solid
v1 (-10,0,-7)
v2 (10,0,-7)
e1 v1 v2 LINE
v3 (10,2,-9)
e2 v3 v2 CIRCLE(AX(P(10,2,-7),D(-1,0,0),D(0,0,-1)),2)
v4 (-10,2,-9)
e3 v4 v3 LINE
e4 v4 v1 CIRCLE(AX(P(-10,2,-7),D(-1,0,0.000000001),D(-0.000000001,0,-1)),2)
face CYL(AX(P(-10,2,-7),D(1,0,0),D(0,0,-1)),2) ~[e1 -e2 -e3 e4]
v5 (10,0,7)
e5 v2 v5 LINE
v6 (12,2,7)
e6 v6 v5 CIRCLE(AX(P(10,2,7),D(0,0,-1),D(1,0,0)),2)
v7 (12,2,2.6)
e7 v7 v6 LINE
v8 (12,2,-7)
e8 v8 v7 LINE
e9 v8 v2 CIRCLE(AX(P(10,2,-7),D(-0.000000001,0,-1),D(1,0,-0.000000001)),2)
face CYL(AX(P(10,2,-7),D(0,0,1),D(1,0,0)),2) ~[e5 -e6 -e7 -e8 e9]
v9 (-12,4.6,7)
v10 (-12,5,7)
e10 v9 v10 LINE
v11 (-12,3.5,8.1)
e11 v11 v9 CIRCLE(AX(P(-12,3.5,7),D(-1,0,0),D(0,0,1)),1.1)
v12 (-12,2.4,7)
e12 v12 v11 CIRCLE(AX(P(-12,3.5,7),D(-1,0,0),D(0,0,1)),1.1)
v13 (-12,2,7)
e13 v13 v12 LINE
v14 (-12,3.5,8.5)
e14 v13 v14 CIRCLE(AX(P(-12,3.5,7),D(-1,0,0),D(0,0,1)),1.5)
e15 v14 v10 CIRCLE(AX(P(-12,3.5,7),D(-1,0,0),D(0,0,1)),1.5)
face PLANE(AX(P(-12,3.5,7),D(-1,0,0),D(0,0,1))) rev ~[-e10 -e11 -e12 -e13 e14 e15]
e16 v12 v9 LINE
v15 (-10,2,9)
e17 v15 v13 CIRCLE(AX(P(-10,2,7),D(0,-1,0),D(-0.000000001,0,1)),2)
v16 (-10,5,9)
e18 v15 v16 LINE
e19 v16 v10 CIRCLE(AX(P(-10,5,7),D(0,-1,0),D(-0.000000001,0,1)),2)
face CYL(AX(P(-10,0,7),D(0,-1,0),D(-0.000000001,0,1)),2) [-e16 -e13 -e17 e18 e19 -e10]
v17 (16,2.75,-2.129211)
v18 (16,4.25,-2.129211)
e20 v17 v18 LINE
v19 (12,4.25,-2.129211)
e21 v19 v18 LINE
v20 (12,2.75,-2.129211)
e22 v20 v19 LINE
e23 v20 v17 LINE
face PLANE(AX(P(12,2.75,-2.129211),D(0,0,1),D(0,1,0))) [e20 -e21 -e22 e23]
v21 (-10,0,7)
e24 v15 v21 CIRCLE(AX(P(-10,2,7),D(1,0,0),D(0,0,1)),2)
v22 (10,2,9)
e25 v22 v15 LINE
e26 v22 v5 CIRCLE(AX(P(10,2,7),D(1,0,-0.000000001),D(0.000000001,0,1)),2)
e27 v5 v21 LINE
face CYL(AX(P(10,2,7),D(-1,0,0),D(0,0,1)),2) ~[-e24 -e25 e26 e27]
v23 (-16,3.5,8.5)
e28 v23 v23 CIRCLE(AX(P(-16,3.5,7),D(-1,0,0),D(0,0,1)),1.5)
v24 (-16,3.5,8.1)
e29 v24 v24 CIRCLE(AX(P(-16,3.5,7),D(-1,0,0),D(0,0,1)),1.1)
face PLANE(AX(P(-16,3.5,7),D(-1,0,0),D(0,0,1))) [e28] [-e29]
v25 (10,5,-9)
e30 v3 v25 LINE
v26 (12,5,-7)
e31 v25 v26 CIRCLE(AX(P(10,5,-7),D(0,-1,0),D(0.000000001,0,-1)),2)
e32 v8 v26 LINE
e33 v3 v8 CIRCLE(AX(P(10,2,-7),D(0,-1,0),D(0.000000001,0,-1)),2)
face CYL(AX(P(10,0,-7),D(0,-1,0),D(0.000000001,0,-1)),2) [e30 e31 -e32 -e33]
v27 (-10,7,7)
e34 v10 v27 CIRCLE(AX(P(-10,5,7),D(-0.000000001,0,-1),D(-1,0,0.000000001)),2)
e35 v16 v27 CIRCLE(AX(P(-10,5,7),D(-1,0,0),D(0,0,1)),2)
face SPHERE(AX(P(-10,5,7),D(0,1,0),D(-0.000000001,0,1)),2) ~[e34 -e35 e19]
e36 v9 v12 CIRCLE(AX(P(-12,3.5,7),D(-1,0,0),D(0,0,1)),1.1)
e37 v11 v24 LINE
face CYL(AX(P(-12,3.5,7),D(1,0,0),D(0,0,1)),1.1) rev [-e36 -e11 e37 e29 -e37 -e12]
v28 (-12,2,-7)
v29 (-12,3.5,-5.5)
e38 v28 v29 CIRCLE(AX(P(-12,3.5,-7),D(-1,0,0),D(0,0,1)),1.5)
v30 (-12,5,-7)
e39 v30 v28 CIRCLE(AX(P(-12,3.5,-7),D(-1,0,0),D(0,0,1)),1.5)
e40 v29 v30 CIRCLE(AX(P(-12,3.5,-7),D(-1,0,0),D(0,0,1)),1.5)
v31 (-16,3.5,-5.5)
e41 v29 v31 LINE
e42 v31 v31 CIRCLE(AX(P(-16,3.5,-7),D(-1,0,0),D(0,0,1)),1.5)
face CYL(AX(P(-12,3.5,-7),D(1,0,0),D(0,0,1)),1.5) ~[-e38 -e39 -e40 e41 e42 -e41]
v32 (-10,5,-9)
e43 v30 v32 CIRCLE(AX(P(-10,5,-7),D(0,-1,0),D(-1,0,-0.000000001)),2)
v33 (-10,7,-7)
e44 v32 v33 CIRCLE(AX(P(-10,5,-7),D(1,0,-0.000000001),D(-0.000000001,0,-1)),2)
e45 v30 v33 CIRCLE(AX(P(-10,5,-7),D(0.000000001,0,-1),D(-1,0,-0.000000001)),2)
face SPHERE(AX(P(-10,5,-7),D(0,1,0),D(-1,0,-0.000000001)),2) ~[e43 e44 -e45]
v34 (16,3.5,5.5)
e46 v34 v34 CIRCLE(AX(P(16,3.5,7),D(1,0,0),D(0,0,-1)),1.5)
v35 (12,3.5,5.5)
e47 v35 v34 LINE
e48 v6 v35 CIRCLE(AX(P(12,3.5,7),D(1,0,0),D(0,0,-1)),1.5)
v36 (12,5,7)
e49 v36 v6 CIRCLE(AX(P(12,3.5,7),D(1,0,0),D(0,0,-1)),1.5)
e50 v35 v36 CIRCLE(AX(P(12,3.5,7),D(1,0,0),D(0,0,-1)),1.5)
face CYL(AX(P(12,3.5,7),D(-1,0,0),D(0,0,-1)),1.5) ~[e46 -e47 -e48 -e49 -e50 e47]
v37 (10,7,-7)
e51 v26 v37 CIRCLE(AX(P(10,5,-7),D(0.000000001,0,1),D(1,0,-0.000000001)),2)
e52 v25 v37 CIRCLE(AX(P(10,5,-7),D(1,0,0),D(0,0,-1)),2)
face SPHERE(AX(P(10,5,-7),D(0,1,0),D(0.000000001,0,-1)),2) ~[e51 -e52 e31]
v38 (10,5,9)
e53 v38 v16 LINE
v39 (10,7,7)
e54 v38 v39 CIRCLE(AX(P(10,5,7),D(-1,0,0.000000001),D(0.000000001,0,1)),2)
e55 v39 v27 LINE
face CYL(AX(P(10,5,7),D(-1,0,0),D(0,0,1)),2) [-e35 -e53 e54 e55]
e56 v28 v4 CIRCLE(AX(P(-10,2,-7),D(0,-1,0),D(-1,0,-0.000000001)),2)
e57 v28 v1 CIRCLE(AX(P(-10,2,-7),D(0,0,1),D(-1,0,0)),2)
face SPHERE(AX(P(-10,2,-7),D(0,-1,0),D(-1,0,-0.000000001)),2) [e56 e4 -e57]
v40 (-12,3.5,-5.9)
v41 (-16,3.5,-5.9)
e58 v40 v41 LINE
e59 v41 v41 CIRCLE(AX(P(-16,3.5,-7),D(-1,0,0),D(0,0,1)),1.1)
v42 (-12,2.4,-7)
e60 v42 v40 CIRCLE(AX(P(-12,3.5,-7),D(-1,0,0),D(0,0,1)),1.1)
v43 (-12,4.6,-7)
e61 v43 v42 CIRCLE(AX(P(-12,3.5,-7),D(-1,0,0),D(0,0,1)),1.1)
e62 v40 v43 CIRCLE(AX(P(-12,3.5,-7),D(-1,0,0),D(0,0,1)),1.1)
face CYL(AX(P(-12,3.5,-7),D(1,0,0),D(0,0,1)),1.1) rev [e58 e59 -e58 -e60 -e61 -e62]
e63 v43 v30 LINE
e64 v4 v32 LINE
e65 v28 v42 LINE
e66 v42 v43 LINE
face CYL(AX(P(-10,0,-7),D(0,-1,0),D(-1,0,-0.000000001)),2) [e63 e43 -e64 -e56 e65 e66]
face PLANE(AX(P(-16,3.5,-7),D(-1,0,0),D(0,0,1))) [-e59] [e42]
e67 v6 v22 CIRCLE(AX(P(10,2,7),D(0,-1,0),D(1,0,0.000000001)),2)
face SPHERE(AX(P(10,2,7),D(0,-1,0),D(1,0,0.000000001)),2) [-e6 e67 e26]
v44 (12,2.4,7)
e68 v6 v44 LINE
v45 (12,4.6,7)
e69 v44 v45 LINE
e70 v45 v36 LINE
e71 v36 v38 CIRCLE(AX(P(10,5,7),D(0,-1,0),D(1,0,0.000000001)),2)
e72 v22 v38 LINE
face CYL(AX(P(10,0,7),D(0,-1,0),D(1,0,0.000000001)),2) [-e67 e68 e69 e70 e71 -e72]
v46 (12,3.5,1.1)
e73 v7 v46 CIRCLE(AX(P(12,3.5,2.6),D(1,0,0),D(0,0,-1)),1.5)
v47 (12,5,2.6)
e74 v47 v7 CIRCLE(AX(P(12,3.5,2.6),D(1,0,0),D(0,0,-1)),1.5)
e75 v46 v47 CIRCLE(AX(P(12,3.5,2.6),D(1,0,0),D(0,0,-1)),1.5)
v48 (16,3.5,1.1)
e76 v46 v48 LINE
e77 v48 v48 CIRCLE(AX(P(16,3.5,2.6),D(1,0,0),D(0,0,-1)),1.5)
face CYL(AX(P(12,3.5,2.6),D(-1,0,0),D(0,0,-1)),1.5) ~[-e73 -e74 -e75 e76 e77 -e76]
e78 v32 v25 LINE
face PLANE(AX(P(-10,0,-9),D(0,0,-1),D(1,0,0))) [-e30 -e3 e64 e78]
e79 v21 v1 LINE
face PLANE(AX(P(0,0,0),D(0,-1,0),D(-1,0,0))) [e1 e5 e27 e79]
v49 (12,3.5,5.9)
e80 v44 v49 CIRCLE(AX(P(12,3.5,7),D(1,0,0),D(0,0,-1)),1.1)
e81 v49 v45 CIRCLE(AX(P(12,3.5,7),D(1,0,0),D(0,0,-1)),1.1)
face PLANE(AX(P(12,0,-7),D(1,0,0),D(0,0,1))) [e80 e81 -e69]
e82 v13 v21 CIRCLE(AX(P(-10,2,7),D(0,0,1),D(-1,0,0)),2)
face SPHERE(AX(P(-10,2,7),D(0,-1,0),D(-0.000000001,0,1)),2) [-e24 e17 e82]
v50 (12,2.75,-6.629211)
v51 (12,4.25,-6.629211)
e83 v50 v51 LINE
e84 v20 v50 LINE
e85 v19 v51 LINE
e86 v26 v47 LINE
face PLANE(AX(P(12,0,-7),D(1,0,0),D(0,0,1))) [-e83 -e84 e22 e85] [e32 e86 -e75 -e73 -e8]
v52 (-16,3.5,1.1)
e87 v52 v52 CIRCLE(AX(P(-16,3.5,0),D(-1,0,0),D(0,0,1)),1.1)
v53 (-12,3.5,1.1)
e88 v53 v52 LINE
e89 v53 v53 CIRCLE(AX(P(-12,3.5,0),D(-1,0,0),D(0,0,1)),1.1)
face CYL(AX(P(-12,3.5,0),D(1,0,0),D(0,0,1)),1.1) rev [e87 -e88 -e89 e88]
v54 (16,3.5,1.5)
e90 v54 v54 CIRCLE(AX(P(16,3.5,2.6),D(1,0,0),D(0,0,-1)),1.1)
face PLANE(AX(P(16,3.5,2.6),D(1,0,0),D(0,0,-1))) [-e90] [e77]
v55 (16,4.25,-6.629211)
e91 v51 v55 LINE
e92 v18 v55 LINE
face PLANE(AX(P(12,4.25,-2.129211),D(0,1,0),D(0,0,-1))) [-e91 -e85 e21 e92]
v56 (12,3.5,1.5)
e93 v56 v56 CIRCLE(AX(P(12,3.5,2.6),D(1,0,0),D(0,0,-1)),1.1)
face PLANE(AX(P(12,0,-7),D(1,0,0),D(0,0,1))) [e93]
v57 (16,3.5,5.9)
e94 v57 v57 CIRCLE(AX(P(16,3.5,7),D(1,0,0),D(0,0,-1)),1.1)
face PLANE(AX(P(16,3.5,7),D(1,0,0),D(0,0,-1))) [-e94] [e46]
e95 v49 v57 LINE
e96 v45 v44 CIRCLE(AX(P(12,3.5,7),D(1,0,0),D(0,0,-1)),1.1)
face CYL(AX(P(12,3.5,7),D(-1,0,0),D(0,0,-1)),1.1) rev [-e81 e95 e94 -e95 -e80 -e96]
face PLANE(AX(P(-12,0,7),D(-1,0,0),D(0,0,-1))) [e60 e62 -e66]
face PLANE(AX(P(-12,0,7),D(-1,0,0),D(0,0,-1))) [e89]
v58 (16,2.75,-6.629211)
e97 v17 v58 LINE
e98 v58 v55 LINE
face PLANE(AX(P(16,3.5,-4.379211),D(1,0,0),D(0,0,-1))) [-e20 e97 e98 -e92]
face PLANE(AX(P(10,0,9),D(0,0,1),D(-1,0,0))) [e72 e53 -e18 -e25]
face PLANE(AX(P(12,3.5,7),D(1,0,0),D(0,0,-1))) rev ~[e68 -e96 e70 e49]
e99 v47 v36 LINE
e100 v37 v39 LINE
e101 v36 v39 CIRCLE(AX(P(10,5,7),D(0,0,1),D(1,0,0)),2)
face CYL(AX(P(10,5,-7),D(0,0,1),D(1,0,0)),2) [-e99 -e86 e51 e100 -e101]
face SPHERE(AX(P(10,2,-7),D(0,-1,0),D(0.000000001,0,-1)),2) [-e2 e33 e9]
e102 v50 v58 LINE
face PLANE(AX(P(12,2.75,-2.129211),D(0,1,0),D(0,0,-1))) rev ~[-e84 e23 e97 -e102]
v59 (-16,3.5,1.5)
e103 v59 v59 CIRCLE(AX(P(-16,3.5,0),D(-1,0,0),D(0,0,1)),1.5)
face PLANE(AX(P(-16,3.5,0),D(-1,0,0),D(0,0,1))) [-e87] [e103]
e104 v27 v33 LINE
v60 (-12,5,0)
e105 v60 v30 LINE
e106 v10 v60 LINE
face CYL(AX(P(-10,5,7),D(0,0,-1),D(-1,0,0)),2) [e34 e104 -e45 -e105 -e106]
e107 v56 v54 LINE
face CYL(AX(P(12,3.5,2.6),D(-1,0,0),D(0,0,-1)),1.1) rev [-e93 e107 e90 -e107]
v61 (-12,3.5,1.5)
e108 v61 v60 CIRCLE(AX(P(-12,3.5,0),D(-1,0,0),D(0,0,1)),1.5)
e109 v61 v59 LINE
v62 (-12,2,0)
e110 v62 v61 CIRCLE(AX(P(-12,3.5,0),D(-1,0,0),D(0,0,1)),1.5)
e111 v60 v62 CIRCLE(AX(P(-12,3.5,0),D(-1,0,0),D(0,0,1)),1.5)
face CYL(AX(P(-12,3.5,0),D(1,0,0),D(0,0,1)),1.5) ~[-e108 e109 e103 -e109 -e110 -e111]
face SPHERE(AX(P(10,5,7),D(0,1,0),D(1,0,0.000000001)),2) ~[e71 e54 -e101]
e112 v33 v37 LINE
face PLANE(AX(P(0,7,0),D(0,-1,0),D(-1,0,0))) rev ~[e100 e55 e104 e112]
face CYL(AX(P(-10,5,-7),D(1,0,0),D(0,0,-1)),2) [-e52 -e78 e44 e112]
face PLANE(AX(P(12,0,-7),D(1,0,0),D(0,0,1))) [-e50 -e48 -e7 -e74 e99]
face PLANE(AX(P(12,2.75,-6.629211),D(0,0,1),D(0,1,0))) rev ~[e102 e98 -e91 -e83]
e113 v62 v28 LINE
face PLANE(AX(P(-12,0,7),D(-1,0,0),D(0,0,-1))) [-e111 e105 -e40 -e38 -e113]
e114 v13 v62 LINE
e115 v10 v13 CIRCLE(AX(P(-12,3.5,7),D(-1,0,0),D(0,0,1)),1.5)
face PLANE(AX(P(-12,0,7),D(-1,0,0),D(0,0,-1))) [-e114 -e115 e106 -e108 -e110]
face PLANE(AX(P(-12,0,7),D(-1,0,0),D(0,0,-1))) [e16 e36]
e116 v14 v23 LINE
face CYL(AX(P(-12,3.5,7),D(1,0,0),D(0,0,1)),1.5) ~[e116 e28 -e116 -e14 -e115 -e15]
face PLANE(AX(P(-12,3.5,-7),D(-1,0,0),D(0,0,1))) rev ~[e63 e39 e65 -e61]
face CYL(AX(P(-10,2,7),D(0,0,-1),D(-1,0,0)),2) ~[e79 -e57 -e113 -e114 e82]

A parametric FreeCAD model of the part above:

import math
import FreeCAD as App
import Part
import Sketcher
from FreeCAD import Vector
Q = App.Units.Quantity


def edges_at(feature, points):
    """Names of the edges that pass closest to the given points."""
    edges = feature.Shape.Edges
    near = lambda p: min(range(len(edges)), key=lambda i: edges[i].distToShape(Part.Vertex(*p))[0])
    return sorted({f"Edge{near(p) + 1}" for p in points})

doc = App.newDocument("Part")
body = doc.addObject("PartDesign::Body", "Body")

sketch1 = doc.addObject("Sketcher::SketchObject", "Sketch")
body.addObject(sketch1)
sketch1.AttachmentSupport = (doc.XZ_Plane, [""])
sketch1.MapMode = "FlatFace"
sketch1.addGeometry([
    Part.LineSegment(Vector(10, -9, 0), Vector(-10, -9, 0)),
    Part.ArcOfCircle(Part.Circle(Vector(-10, -7, 0), Vector(0, 0, 1), 2), math.radians(-180), math.radians(-90)),
    Part.LineSegment(Vector(-12, -7, 0), Vector(-12, 7, 0)),
    Part.ArcOfCircle(Part.Circle(Vector(-10, 7, 0), Vector(0, 0, 1), 2), math.radians(90), math.radians(180)),
    Part.LineSegment(Vector(-10, 9, 0), Vector(10, 9, 0)),
    Part.ArcOfCircle(Part.Circle(Vector(10, 7, 0), Vector(0, 0, 1), 2), math.radians(0), math.radians(90)),
    Part.LineSegment(Vector(12, 7, 0), Vector(12, -7, 0)),
    Part.ArcOfCircle(Part.Circle(Vector(10, -7, 0), Vector(0, 0, 1), 2), math.radians(-90), math.radians(0)),
], False)
sketch1.addConstraint([
    Sketcher.Constraint("Tangent", 0, 2, 1, 2),
    Sketcher.Constraint("Tangent", 1, 1, 2, 1),
    Sketcher.Constraint("Tangent", 2, 2, 3, 2),
    Sketcher.Constraint("Tangent", 3, 1, 4, 1),
    Sketcher.Constraint("Tangent", 4, 2, 5, 2),
    Sketcher.Constraint("Tangent", 5, 1, 6, 1),
    Sketcher.Constraint("Tangent", 6, 2, 7, 2),
    Sketcher.Constraint("Tangent", 7, 1, 0, 1),
    Sketcher.Constraint("Horizontal", 0),
    Sketcher.Constraint("Vertical", 2),
    Sketcher.Constraint("Horizontal", 4),
    Sketcher.Constraint("Vertical", 6),
    Sketcher.Constraint("Equal", 1, 3),
    Sketcher.Constraint("Equal", 3, 5),
    Sketcher.Constraint("Equal", 5, 7),
    Sketcher.Constraint("Symmetric", 1, 3, 5, 3, -1, 1),
    Sketcher.Constraint("Radius", 1, Q("2 mm")),
    Sketcher.Constraint("DistanceX", 0, 2, 0, 1, Q("20 mm")),
    Sketcher.Constraint("DistanceY", 2, 1, 2, 2, Q("14 mm")),
])
pad1 = doc.addObject("PartDesign::Pad", "Pad")
body.addObject(pad1)
pad1.Profile = sketch1
pad1.Length = 7
pad1.Reversed = True
doc.recompute()

fillet = doc.addObject("PartDesign::Fillet", "Fillet")
body.addObject(fillet)
fillet.Base = (pad1, edges_at(pad1, [
    (-12, 0, 0),
    (-11.414, 0, -8.414),
    (0, 0, -9),
    (11.414, 0, -8.414),
    (-11.414, 7, -8.414),
    (-12, 7, 0),
    (-11.414, 7, 8.414),
    (0, 7, 9),
    (11.414, 7, 8.414),
    (12, 7, 0),
    (11.414, 7, -8.414),
    (12, 0, 0),
    (0, 7, -9),
    (11.414, 0, 8.414),
    (0, 0, 9),
    (-11.414, 0, 8.414),
]))
fillet.Radius = 2

sketch2 = doc.addObject("Sketcher::SketchObject", "Sketch001")
body.addObject(sketch2)
sketch2.AttachmentSupport = (doc.YZ_Plane, [""])
sketch2.MapMode = "FlatFace"
sketch2.AttachmentOffset = App.Placement(Vector(0, 0, -12), App.Rotation())
sketch2.addGeometry([
    Part.Circle(Vector(3.5, -7, 0), Vector(0, 0, 1), 1.5),
    Part.Circle(Vector(3.5, -7, 0), Vector(0, 0, 1), 1.1),
    Part.Circle(Vector(3.5, 0, 0), Vector(0, 0, 1), 1.5),
    Part.Circle(Vector(3.5, 0, 0), Vector(0, 0, 1), 1.1),
    Part.Circle(Vector(3.5, 7, 0), Vector(0, 0, 1), 1.5),
    Part.Circle(Vector(3.5, 7, 0), Vector(0, 0, 1), 1.1),
], False)
sketch2.addConstraint([
    Sketcher.Constraint("Coincident", 1, 3, 0, 3),
    Sketcher.Constraint("Coincident", 3, 3, 2, 3),
    Sketcher.Constraint("Coincident", 5, 3, 4, 3),
    Sketcher.Constraint("Equal", 0, 2),
    Sketcher.Constraint("Equal", 1, 3),
    Sketcher.Constraint("Equal", 2, 4),
    Sketcher.Constraint("Equal", 3, 5),
    Sketcher.Constraint("Symmetric", 0, 3, 4, 3, -1),
    Sketcher.Constraint("PointOnObject", 2, 3, -1),
    Sketcher.Constraint("Vertical", 1, 3, 2, 3),
    Sketcher.Constraint("Diameter", 0, Q("3 mm")),
    Sketcher.Constraint("Diameter", 1, Q("2.2 mm")),
    Sketcher.Constraint("DistanceY", 0, 3, -1, 1, Q("7 mm")),
    Sketcher.Constraint("DistanceX", -1, 1, 0, 3, Q("3.5 mm")),
])
pad2 = doc.addObject("PartDesign::Pad", "Pad001")
body.addObject(pad2)
pad2.Profile = sketch2
pad2.Length = 4
pad2.Reversed = True

sketch3 = doc.addObject("Sketcher::SketchObject", "Sketch002")
body.addObject(sketch3)
sketch3.AttachmentSupport = (doc.YZ_Plane, [""])
sketch3.MapMode = "FlatFace"
sketch3.AttachmentOffset = App.Placement(Vector(0, 0, 12), App.Rotation())
sketch3.addGeometry([
    Part.Circle(Vector(3.5, 7, 0), Vector(0, 0, 1), 1.5),
    Part.Circle(Vector(3.5, 7, 0), Vector(0, 0, 1), 1.1),
    Part.Circle(Vector(3.5, 2.6, 0), Vector(0, 0, 1), 1.5),
    Part.Circle(Vector(3.5, 2.6, 0), Vector(0, 0, 1), 1.1),
    Part.LineSegment(Vector(4.2, -2.1, 0), Vector(2.8, -2.1, 0)),
    Part.LineSegment(Vector(2.8, -2.1, 0), Vector(2.8, -6.6, 0)),
    Part.LineSegment(Vector(2.8, -6.6, 0), Vector(4.2, -6.6, 0)),
    Part.LineSegment(Vector(4.2, -6.6, 0), Vector(4.2, -2.1, 0)),
], False)
sketch3.addConstraint([
    Sketcher.Constraint("Coincident", 4, 2, 5, 1),
    Sketcher.Constraint("Coincident", 5, 2, 6, 1),
    Sketcher.Constraint("Coincident", 6, 2, 7, 1),
    Sketcher.Constraint("Coincident", 7, 2, 4, 1),
    Sketcher.Constraint("Horizontal", 4),
    Sketcher.Constraint("Vertical", 5),
    Sketcher.Constraint("Horizontal", 6),
    Sketcher.Constraint("Vertical", 7),
    Sketcher.Constraint("Coincident", 1, 3, 0, 3),
    Sketcher.Constraint("Coincident", 3, 3, 2, 3),
    Sketcher.Constraint("Equal", 0, 2),
    Sketcher.Constraint("Equal", 1, 3),
    Sketcher.Constraint("Vertical", 1, 3, 2, 3),
    Sketcher.Constraint("Diameter", 0, Q("3 mm")),
    Sketcher.Constraint("Diameter", 1, Q("2.2 mm")),
    Sketcher.Constraint("DistanceX", 4, 2, 4, 1, Q("1.5 mm")),
    Sketcher.Constraint("DistanceY", 5, 2, 5, 1, Q("4.5 mm")),
    Sketcher.Constraint("DistanceY", -1, 1, 0, 3, Q("7 mm")),
    Sketcher.Constraint("DistanceX", -1, 1, 0, 3, Q("3.5 mm")),
    Sketcher.Constraint("DistanceY", -1, 1, 2, 3, Q("2.6 mm")),
    Sketcher.Constraint("DistanceX", -1, 1, 4, 2, Q("2.75 mm")),
    Sketcher.Constraint("DistanceY", 4, 2, -1, 1, Q("2.129211 mm")),
])
pad3 = doc.addObject("PartDesign::Pad", "Pad002")
body.addObject(pad3)
pad3.Profile = sketch3
pad3.Length = 4

doc.recompute()
